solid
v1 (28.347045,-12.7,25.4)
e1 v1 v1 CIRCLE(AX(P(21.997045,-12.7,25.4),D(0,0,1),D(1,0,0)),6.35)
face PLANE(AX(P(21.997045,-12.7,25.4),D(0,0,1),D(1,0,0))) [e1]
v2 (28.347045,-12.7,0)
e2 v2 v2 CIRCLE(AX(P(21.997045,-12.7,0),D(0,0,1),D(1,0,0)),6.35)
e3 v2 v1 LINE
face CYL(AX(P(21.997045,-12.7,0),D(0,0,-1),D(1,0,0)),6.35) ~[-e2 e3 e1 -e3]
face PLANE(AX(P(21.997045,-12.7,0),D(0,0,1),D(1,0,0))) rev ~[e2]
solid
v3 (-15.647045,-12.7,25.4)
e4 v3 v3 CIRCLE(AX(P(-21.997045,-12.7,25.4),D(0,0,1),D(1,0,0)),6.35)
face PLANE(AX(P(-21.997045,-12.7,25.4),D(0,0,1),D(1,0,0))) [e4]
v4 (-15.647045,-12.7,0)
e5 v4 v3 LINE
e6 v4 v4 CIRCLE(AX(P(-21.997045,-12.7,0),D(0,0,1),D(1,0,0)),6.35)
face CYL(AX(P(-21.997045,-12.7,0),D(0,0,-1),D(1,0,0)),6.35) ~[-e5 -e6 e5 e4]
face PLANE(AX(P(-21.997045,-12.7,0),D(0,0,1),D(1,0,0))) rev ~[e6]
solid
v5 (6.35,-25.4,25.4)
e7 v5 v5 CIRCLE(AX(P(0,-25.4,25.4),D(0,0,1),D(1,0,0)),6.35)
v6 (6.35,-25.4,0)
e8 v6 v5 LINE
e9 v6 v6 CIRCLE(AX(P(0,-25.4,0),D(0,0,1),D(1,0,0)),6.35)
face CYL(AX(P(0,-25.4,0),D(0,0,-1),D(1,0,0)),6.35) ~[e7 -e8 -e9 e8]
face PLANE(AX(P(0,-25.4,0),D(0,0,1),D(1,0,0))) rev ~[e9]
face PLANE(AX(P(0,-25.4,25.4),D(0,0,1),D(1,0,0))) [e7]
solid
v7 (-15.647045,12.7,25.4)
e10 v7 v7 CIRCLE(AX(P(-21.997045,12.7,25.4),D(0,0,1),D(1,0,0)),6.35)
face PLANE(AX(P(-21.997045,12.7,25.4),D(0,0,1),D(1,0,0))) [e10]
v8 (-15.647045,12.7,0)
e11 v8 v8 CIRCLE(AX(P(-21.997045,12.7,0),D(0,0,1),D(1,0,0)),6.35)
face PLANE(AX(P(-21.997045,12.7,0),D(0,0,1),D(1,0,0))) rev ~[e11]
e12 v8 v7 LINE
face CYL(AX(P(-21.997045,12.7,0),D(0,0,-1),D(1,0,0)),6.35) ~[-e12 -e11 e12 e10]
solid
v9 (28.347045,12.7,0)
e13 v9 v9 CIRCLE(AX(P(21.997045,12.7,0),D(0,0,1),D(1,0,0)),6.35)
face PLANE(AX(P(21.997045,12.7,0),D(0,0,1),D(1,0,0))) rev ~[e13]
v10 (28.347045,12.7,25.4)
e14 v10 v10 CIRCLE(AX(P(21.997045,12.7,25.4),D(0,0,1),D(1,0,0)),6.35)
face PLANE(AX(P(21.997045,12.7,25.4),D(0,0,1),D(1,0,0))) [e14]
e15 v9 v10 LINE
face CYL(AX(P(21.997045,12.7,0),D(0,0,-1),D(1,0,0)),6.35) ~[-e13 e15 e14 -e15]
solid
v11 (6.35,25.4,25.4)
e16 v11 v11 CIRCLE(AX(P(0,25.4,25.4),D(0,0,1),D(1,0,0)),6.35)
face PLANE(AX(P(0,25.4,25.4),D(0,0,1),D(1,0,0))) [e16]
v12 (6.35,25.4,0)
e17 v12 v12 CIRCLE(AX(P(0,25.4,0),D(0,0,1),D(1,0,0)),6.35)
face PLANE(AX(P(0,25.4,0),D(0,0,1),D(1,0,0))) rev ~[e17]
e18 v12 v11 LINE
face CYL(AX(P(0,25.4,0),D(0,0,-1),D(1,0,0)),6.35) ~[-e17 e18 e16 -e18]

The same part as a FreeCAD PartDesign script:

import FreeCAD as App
import Part
import Sketcher
Q = App.Units.Quantity

doc = App.newDocument("Part")
params = doc.addObject("Spreadsheet::Sheet", "Params")
for row, (alias, value) in enumerate([
    ("sketch1_diameter", "0.5 in"),
    ("pad1_length", "1 in"),
], start=1):
    params.set(f"A{row}", alias)
    params.set(f"B{row}", "=" + value)
    params.setAlias(f"B{row}", alias)

body = doc.addObject("PartDesign::Body", "Body")
body.AllowCompound = True

# Sketch on XY plane
sketch1 = doc.addObject("Sketcher::SketchObject", "Sketch")
body.addObject(sketch1)
sketch1.AttachmentSupport = (doc.XY_Plane, [""])
sketch1.MapMode = "FlatFace"
sketch1.addGeometry(Part.Circle(App.Vector(0, 25.4, 0), App.Vector(0, 0, 1), 6.35), False)
sketch1.addGeometry(Part.Circle(App.Vector(-21.997045, -12.7, 0), App.Vector(0, 0, 1), 6.35), False)
sketch1.addGeometry(Part.Circle(App.Vector(21.997045, -12.7, 0), App.Vector(0, 0, 1), 6.35), False)
sketch1.addGeometry(Part.Circle(App.Vector(21.997045, 12.7, 0), App.Vector(0, 0, 1), 6.35), False)
sketch1.addGeometry(Part.Circle(App.Vector(-21.997045, 12.7, 0), App.Vector(0, 0, 1), 6.35), False)
sketch1.addGeometry(Part.Circle(App.Vector(0, -25.4, 0), App.Vector(0, 0, 1), 6.35), False)
sketch1.addConstraint(Sketcher.Constraint("Equal", 0, 1))
sketch1.addConstraint(Sketcher.Constraint("Equal", 1, 2))
sketch1.addConstraint(Sketcher.Constraint("Equal", 2, 3))
sketch1.addConstraint(Sketcher.Constraint("Equal", 3, 4))
sketch1.addConstraint(Sketcher.Constraint("Equal", 4, 5))
sketch1.addConstraint(Sketcher.Constraint("Symmetric", 1, 3, 3, 3, -1, 1))
sketch1.addConstraint(Sketcher.Constraint("Symmetric", 2, 3, 4, 3, -1, 1))
sketch1.addConstraint(Sketcher.Constraint("Symmetric", 0, 3, 5, 3, -1, 1))
sketch1.addConstraint(Sketcher.Constraint("Symmetric", 1, 3, 2, 3, -2))
sketch1.addConstraint(Sketcher.Constraint("PointOnObject", 0, 3, -2))
sketch1.addConstraint(Sketcher.Constraint("Diameter", 0, Q("0.5 in")))
sketch1.addConstraint(Sketcher.Constraint("DistanceY", -1, 1, 0, 3, Q("1 in")))
sketch1.addConstraint(Sketcher.Constraint("DistanceY", 2, 3, 3, 3, Q("1 in")))
sketch1.addConstraint(Sketcher.Constraint("DistanceX", 1, 3, 2, 3, Q("43.99409 mm")))
sketch1.setExpression("Constraints[10]", "Params.sketch1_diameter")
pad1 = doc.addObject("PartDesign::Pad", "Pad")
body.addObject(pad1)
pad1.Profile = sketch1
pad1.setExpression("Length", "Params.pad1_length")

doc.recompute()
